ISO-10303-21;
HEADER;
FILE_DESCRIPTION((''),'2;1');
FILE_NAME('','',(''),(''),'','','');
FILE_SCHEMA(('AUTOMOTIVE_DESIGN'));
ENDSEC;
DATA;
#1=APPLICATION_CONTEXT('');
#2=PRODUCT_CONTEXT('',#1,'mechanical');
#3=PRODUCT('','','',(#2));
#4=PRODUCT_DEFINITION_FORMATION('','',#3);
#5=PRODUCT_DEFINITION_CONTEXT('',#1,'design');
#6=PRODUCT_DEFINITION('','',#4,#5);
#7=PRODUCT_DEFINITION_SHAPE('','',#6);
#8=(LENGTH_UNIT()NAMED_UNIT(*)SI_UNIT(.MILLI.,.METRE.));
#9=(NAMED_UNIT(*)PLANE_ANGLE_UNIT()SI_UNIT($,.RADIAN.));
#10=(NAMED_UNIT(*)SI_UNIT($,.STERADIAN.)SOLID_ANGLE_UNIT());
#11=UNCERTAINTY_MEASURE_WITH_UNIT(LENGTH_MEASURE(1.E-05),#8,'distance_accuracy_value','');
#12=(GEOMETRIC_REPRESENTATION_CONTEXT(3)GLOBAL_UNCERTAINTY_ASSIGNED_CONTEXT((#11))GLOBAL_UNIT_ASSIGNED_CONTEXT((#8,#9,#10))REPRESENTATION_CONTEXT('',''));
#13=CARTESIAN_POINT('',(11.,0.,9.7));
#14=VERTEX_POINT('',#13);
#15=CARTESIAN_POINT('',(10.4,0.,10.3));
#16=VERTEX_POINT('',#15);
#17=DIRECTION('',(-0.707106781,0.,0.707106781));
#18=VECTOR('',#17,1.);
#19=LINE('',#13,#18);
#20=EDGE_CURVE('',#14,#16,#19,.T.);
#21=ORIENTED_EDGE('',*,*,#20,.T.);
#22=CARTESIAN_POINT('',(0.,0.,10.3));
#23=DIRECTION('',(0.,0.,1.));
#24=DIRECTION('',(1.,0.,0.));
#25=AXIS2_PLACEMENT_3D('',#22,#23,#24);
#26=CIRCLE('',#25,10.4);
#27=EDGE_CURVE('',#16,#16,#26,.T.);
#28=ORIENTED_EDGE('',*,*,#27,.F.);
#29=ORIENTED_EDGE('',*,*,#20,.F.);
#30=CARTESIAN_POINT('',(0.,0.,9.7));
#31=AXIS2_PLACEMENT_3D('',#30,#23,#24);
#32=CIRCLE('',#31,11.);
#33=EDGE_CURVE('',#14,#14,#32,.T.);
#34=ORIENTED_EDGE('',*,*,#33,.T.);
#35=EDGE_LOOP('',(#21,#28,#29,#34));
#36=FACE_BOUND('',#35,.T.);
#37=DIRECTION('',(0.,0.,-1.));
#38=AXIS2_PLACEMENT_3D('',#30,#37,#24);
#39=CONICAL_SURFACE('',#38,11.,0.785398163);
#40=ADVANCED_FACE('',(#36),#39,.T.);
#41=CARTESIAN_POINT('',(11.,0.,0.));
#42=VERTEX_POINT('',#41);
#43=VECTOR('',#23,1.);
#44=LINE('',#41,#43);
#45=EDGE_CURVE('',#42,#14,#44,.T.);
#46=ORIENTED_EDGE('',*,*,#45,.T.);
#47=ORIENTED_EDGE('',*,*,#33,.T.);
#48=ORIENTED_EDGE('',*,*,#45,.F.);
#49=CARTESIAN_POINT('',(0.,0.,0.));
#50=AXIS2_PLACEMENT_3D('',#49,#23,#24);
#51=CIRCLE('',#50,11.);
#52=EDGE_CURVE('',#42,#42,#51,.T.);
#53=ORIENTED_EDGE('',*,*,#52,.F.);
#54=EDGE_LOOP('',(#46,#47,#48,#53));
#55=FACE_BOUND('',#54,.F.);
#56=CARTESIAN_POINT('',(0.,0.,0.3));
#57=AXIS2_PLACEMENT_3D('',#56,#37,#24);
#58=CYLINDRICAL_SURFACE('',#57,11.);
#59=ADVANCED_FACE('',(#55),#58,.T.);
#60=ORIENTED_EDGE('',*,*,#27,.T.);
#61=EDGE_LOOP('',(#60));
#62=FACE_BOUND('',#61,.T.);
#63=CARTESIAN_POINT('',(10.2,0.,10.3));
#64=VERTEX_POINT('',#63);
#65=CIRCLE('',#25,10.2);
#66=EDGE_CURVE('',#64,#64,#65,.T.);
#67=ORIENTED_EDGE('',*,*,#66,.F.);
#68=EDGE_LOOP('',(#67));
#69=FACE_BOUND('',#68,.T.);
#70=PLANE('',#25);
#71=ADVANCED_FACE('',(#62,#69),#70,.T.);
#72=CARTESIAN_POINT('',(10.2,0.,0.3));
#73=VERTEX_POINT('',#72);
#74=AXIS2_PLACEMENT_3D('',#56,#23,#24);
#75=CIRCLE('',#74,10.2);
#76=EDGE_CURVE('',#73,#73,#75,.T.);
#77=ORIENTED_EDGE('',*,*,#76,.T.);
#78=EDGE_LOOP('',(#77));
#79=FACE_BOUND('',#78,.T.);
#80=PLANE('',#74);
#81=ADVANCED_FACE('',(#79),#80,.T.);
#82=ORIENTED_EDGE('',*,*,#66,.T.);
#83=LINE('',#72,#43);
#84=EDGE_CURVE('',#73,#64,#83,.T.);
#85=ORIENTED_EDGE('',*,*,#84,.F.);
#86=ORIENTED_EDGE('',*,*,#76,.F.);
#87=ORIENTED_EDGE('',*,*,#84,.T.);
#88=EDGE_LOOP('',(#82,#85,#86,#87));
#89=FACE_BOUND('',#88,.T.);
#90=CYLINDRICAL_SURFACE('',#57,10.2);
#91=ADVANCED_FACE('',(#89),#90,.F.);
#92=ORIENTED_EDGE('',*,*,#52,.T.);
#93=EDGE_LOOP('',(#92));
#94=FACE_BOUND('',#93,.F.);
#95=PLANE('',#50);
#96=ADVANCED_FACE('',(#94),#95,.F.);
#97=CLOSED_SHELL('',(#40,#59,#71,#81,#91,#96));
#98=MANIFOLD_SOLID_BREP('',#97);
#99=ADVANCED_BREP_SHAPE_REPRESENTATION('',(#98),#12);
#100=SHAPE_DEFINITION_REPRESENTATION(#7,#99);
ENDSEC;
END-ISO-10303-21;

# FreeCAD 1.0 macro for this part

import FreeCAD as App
import Part
import Sketcher


def edges_at(feature, points):
    """Names of the edges that pass closest to the given points."""
    edges = feature.Shape.Edges
    near = lambda p: min(range(len(edges)), key=lambda i: edges[i].distToShape(Part.Vertex(*p))[0])
    return sorted({f"Edge{near(p) + 1}" for p in points})

doc = App.newDocument("Part")
body = doc.addObject("PartDesign::Body", "Body")

# Sketch on XY plane
sketch1 = body.newObject("Sketcher::SketchObject", "Sketch")
sketch1.AttachmentSupport = (doc.getObject("XY_Plane"), [""])
sketch1.MapMode = "FlatFace"
sketch1.addGeometry(Part.Circle(App.Vector(0, 0, 0), App.Vector(0, 0, 1), 11), False)
sketch1.addConstraint(Sketcher.Constraint("Coincident", 0, 3, -1, 1))
sketch1.addConstraint(Sketcher.Constraint("Diameter", 0, 22.0))
pad1 = body.newObject("PartDesign::Pad", "Pad")
pad1.Profile = sketch1
pad1.Length = 0.3

# Sketch on XY plane
sketch2 = body.newObject("Sketcher::SketchObject", "Sketch001")
sketch2.AttachmentSupport = (doc.getObject("XY_Plane"), [""])
sketch2.MapMode = "FlatFace"
sketch2.AttachmentOffset = App.Placement(App.Vector(0, 0, 0.3), App.Rotation())
sketch2.addGeometry(Part.Circle(App.Vector(0, 0, 0), App.Vector(0, 0, 1), 11), False)
sketch2.addGeometry(Part.Circle(App.Vector(0, 0, 0), App.Vector(0, 0, 1), 10), False)
sketch2.addConstraint(Sketcher.Constraint("Coincident", 0, 3, -1, 1))
sketch2.addConstraint(Sketcher.Constraint("Coincident", 1, 3, -1, 1))
sketch2.addConstraint(Sketcher.Constraint("Diameter", 0, 22.0))
sketch2.addConstraint(Sketcher.Constraint("Diameter", 1, 20.4))
pad2 = body.newObject("PartDesign::Pad", "Pad001")
pad2.Profile = sketch2
pad2.Length = 10
doc.recompute()

chamfer = body.newObject("PartDesign::Chamfer", "Chamfer")
chamfer.Base = (pad2, edges_at(pad2, [(-11, 0, 10.3)]))
chamfer.Size = 0.6

doc.recompute()
